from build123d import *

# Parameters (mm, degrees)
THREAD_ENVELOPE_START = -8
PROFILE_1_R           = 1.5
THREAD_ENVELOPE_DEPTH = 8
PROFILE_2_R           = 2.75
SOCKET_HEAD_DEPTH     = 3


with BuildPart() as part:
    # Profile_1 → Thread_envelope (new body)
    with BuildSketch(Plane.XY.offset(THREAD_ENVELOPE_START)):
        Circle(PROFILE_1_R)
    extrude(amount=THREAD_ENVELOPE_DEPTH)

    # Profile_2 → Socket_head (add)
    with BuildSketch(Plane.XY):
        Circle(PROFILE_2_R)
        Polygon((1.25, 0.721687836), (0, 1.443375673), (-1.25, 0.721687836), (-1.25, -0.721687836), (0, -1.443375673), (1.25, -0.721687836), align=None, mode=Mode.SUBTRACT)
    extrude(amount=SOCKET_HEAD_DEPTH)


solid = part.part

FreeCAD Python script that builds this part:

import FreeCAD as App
import Part
import Sketcher
from FreeCAD import Vector
Q = App.Units.Quantity


def add_polygon(sketch, points):
    """Adds a closed chain of lines whose ends are joined by coincident constraints."""
    first, n = sketch.GeometryCount, len(points)
    for a, b in zip(points, points[1:] + points[:1]):
        sketch.addGeometry(Part.LineSegment(App.Vector(*a, 0), App.Vector(*b, 0)), False)
    for i in range(n):
        sketch.addConstraint(Sketcher.Constraint("Coincident", first + i, 2, first + (i + 1) % n, 1))

doc = App.newDocument("Part")
body = doc.addObject("PartDesign::Body", "Body")

# Sketch on XY plane
sketch1 = body.newObject("Sketcher::SketchObject", "Sketch")
sketch1.AttachmentSupport = (doc.getObject("XY_Plane"), [""])
sketch1.MapMode = "FlatFace"
sketch1.AttachmentOffset = App.Placement(Vector(0, 0, -8), App.Rotation())
sketch1.addGeometry(Part.Circle(Vector(0, 0, 0), Vector(0, 0, 1), 1.5), False)
sketch1.addConstraint([
    Sketcher.Constraint("Coincident", 0, 3, -1, 1),
    Sketcher.Constraint("Diameter", 0, Q("3 mm")),
])
pad1 = body.newObject("PartDesign::Pad", "Pad")
pad1.Profile = sketch1
pad1.Length = 8

# Sketch on XY plane
sketch2 = body.newObject("Sketcher::SketchObject", "Sketch001")
sketch2.AttachmentSupport = (doc.getObject("XY_Plane"), [""])
sketch2.MapMode = "FlatFace"
sketch2.addGeometry(Part.Circle(Vector(0, 0, 0), Vector(0, 0, 1), 2.8), False)  # 0
add_polygon(sketch2, [(0, 1.4), (1.2, 0.7), (1.2, -0.7), (0, -1.4), (-1.2, -0.7), (-1.2, 0.7)])  # lines 1-6
sketch2.addConstraint([
    Sketcher.Constraint("Vertical", 2),
    Sketcher.Constraint("Vertical", 5),
    Sketcher.Constraint("Coincident", 0, 3, -1, 1),
    Sketcher.Constraint("Symmetric", 1, 2, 4, 2, -1, 1),
    Sketcher.Constraint("Symmetric", 3, 2, 6, 2, -1, 1),
    Sketcher.Constraint("PointOnObject", 3, 2, -2),
    Sketcher.Constraint("Parallel", 3, 6),
    Sketcher.Constraint("Horizontal", 2, 2, 4, 2),
    Sketcher.Constraint("Diameter", 0, Q("5.5 mm")),
    Sketcher.Constraint("Angle", 1, Q("-30 deg")),
    Sketcher.Constraint("DistanceX", 4, 2, 2, 2, Q("2.5 mm")),
    Sketcher.Constraint("DistanceY", 2, 2, 2, 1, Q("1.443376 mm")),
])
pad2 = body.newObject("PartDesign::Pad", "Pad001")
pad2.Profile = sketch2
pad2.Length = 3

doc.recompute()
